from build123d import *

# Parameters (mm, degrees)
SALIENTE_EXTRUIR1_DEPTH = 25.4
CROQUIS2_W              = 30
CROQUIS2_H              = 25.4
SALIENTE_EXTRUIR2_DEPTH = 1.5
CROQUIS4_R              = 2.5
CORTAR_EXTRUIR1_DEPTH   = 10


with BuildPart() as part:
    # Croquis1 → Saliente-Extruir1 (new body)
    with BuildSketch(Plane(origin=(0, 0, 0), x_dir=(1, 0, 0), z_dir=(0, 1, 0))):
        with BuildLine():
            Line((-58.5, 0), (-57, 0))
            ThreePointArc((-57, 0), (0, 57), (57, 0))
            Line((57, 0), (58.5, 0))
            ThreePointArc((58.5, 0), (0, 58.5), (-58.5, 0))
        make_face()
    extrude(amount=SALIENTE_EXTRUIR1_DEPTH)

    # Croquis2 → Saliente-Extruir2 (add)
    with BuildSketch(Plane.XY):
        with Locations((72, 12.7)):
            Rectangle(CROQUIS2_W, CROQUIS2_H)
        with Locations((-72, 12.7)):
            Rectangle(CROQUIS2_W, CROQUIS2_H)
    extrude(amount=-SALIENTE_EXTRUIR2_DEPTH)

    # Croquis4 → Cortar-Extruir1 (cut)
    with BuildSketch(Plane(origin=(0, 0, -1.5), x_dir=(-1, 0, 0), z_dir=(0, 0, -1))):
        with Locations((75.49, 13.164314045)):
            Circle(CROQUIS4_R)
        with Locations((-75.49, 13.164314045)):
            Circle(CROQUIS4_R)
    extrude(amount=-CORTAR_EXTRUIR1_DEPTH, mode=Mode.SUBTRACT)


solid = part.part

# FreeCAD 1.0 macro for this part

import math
import FreeCAD as App
import Part
import Sketcher
Q = App.Units.Quantity

doc = App.newDocument("Part")
body = doc.addObject("PartDesign::Body", "Body")

# Sketch on XZ plane
sketch1 = body.newObject("Sketcher::SketchObject", "Sketch")
sketch1.AttachmentSupport = (doc.getObject("XZ_Plane"), [""])
sketch1.MapMode = "FlatFace"
sketch1.addGeometry([
    Part.LineSegment(App.Vector(-58.5, 0, 0), App.Vector(-57, 0, 0)),
    Part.ArcOfCircle(Part.Circle(App.Vector(0, 0, 0), App.Vector(0, 0, 1), 57), math.radians(180), math.radians(360)),
    Part.LineSegment(App.Vector(57, 0, 0), App.Vector(58.5, 0, 0)),
    Part.ArcOfCircle(Part.Circle(App.Vector(0, 0, 0), App.Vector(0, 0, 1), 58.5), math.radians(180), math.radians(360)),
], False)
sketch1.addConstraint([
    Sketcher.Constraint("Coincident", 0, 2, 1, 1),
    Sketcher.Constraint("Coincident", 1, 2, 2, 1),
    Sketcher.Constraint("Coincident", 2, 2, 3, 2),
    Sketcher.Constraint("Coincident", 3, 1, 0, 1),
    Sketcher.Constraint("Horizontal", 0),
    Sketcher.Constraint("Horizontal", 2),
    Sketcher.Constraint("Coincident", 1, 3, -1, 1),
    Sketcher.Constraint("Coincident", 3, 3, -1, 1),
    Sketcher.Constraint("PointOnObject", 0, 2, -1),
    Sketcher.Constraint("PointOnObject", 1, 2, -1),
    Sketcher.Constraint("Radius", 1, Q("57 mm")),
    Sketcher.Constraint("Radius", 3, Q("58.5 mm")),
])
pad1 = body.newObject("PartDesign::Pad", "Pad")
pad1.Profile = sketch1
pad1.Length = 25.4
pad1.Reversed = True

# Sketch on XY plane
sketch2 = body.newObject("Sketcher::SketchObject", "Sketch001")
sketch2.AttachmentSupport = (doc.getObject("XY_Plane"), [""])
sketch2.MapMode = "FlatFace"
sketch2.addGeometry([
    Part.LineSegment(App.Vector(57, 25, 0), App.Vector(57, 0, 0)),  # 0
    Part.LineSegment(App.Vector(57, 0, 0), App.Vector(87, 0, 0)),  # 1
    Part.LineSegment(App.Vector(87, 0, 0), App.Vector(87, 25, 0)),  # 2
    Part.LineSegment(App.Vector(87, 25, 0), App.Vector(57, 25, 0)),  # 3
    Part.LineSegment(App.Vector(-87, 25, 0), App.Vector(-87, 0, 0)),  # 4
    Part.LineSegment(App.Vector(-87, 0, 0), App.Vector(-57, 0, 0)),  # 5
    Part.LineSegment(App.Vector(-57, 0, 0), App.Vector(-57, 25, 0)),  # 6
    Part.LineSegment(App.Vector(-57, 25, 0), App.Vector(-87, 25, 0)),  # 7
], False)
sketch2.addConstraint([
    Sketcher.Constraint("Coincident", 0, 2, 1, 1),
    Sketcher.Constraint("Coincident", 1, 2, 2, 1),
    Sketcher.Constraint("Coincident", 2, 2, 3, 1),
    Sketcher.Constraint("Coincident", 3, 2, 0, 1),
    Sketcher.Constraint("Coincident", 4, 2, 5, 1),
    Sketcher.Constraint("Coincident", 5, 2, 6, 1),
    Sketcher.Constraint("Coincident", 6, 2, 7, 1),
    Sketcher.Constraint("Coincident", 7, 2, 4, 1),
    Sketcher.Constraint("Vertical", 0),
    Sketcher.Constraint("Horizontal", 1),
    Sketcher.Constraint("Vertical", 2),
    Sketcher.Constraint("Horizontal", 3),
    Sketcher.Constraint("Vertical", 4),
    Sketcher.Constraint("Horizontal", 5),
    Sketcher.Constraint("Vertical", 6),
    Sketcher.Constraint("Horizontal", 7),
    Sketcher.Constraint("Symmetric", 1, 2, 4, 2, -1, 1),
    Sketcher.Constraint("Symmetric", 0, 2, 5, 2, -2),
    Sketcher.Constraint("Horizontal", 3, 2, 6, 2),
    Sketcher.Constraint("DistanceX", 1, 1, 1, 2, Q("30 mm")),
    Sketcher.Constraint("DistanceY", 0, 2, 0, 1, Q("25.4 mm")),
    Sketcher.Constraint("DistanceX", -1, 1, 0, 2, Q("57 mm")),
])
pad2 = body.newObject("PartDesign::Pad", "Pad001")
pad2.Profile = sketch2
pad2.Length = 1.5
pad2.Reversed = True

# Sketch on XY plane
sketch3 = body.newObject("Sketcher::SketchObject", "Sketch002")
sketch3.AttachmentSupport = (doc.getObject("XY_Plane"), [""])
sketch3.MapMode = "FlatFace"
sketch3.AttachmentOffset = App.Placement(App.Vector(0, 0, -1.5), App.Rotation())
sketch3.addGeometry([
    Part.Circle(App.Vector(-75.5, 13.2, 0), App.Vector(0, 0, 1), 2.5),
    Part.Circle(App.Vector(75.5, 13.2, 0), App.Vector(0, 0, 1), 2.5),
], False)
sketch3.addConstraint([
    Sketcher.Constraint("Equal", 0, 1),
    Sketcher.Constraint("Symmetric", 0, 3, 1, 3, -2),
    Sketcher.Constraint("Diameter", 0, Q("5 mm")),
    Sketcher.Constraint("DistanceX", 0, 3, -1, 1, Q("75.49 mm")),
    Sketcher.Constraint("DistanceY", -1, 1, 0, 3, Q("13.164314 mm")),
])
pocket1 = body.newObject("PartDesign::Pocket", "Pocket")
pocket1.Profile = sketch3
pocket1.Length = 10
pocket1.Reversed = True

doc.recompute()
